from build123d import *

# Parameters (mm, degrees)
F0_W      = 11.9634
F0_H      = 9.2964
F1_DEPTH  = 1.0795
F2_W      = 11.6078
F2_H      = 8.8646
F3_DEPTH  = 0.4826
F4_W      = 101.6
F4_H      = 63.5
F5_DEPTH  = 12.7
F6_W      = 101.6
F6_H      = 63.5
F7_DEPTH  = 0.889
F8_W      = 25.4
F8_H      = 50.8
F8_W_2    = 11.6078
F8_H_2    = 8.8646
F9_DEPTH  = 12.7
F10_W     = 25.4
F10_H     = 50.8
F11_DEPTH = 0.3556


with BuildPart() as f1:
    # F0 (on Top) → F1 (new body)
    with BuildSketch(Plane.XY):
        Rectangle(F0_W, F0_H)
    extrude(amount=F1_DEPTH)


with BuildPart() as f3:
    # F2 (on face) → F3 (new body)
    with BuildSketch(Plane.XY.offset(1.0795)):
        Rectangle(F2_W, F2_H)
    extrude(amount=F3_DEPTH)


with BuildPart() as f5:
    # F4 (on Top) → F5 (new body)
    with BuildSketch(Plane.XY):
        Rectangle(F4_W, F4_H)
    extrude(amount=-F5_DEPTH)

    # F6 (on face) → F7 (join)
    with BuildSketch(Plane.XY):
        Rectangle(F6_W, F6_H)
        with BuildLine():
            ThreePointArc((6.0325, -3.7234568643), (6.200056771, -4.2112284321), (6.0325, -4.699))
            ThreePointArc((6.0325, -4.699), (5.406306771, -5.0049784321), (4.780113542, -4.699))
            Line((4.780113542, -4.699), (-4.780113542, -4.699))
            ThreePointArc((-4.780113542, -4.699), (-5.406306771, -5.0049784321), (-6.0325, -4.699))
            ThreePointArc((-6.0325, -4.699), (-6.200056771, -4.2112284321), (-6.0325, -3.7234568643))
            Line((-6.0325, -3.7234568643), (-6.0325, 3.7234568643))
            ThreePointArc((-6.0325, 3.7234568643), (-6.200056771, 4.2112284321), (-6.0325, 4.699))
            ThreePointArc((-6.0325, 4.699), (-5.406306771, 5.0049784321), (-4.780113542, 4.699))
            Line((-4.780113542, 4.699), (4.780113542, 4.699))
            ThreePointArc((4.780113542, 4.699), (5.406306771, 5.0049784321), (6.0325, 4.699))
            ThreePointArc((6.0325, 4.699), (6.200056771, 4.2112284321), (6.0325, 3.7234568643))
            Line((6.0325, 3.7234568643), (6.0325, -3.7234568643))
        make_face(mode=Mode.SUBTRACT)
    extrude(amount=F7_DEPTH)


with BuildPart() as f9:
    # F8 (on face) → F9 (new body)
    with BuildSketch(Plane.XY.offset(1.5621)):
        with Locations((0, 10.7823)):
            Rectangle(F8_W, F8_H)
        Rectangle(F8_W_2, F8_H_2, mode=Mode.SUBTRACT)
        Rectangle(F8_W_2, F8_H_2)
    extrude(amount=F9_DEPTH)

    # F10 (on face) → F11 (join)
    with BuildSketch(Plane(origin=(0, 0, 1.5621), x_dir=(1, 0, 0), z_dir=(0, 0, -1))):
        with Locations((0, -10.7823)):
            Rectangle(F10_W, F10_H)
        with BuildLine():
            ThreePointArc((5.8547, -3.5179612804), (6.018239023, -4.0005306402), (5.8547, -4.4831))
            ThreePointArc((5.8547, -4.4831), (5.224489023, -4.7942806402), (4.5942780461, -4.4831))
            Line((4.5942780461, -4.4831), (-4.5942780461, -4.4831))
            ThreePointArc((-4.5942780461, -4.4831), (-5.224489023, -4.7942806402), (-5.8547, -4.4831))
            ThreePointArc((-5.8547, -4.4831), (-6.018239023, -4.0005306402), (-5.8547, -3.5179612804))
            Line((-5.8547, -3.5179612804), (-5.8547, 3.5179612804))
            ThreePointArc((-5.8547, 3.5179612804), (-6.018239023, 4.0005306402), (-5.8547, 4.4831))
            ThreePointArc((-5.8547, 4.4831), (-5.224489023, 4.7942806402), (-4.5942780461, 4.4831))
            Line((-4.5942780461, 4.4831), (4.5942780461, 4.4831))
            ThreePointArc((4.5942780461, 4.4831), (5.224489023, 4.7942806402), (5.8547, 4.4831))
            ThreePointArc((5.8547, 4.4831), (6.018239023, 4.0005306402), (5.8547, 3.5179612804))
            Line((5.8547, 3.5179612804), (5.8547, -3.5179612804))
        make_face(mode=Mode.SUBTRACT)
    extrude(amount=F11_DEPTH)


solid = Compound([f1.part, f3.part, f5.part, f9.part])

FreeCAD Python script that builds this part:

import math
import FreeCAD as App
import Part
import Sketcher

V = App.Vector
Q = App.Units.Quantity

doc = App.newDocument("Part")
body = doc.addObject("PartDesign::Body", "Body")

# Sketch on XY plane
sketch1 = body.newObject("Sketcher::SketchObject", "Sketch")
sketch1.AttachmentSupport = (doc.getObject("XY_Plane"), [""])
sketch1.MapMode = "FlatFace"
sketch1.addGeometry(Part.LineSegment(V(-5.9817, 4.6482, 0), V(-5.9817, -4.6482, 0)), False)
sketch1.addGeometry(Part.LineSegment(V(-5.9817, -4.6482, 0), V(5.9817, -4.6482, 0)), False)
sketch1.addGeometry(Part.LineSegment(V(5.9817, -4.6482, 0), V(5.9817, 4.6482, 0)), False)
sketch1.addGeometry(Part.LineSegment(V(5.9817, 4.6482, 0), V(-5.9817, 4.6482, 0)), False)
sketch1.addConstraint(Sketcher.Constraint("Coincident", 0, 2, 1, 1))
sketch1.addConstraint(Sketcher.Constraint("Coincident", 1, 2, 2, 1))
sketch1.addConstraint(Sketcher.Constraint("Coincident", 2, 2, 3, 1))
sketch1.addConstraint(Sketcher.Constraint("Coincident", 3, 2, 0, 1))
sketch1.addConstraint(Sketcher.Constraint("Vertical", 0))
sketch1.addConstraint(Sketcher.Constraint("Horizontal", 1))
sketch1.addConstraint(Sketcher.Constraint("Vertical", 2))
sketch1.addConstraint(Sketcher.Constraint("Horizontal", 3))
sketch1.addConstraint(Sketcher.Constraint("Symmetric", 0, 2, 2, 2, -1, 1))
sketch1.addConstraint(Sketcher.Constraint("DistanceX", 1, 1, 1, 2, Q("0.471 in")))
sketch1.addConstraint(Sketcher.Constraint("DistanceY", 0, 2, 0, 1, Q("0.366 in")))
pad1 = body.newObject("PartDesign::Pad", "Pad")
pad1.Profile = sketch1
pad1.Length = Q("0.0425 in")
body2 = doc.addObject("PartDesign::Body", "Body001")

# Sketch on XY plane
sketch2 = body2.newObject("Sketcher::SketchObject", "Sketch001")
sketch2.AttachmentSupport = (doc.getObject("XY_Plane001"), [""])
sketch2.MapMode = "FlatFace"
sketch2.AttachmentOffset = App.Placement(V(0, 0, 0.0425 * 25.4), App.Rotation())
sketch2.addGeometry(Part.LineSegment(V(-5.8039, 4.4323, 0), V(-5.8039, -4.4323, 0)), False)
sketch2.addGeometry(Part.LineSegment(V(-5.8039, -4.4323, 0), V(5.8039, -4.4323, 0)), False)
sketch2.addGeometry(Part.LineSegment(V(5.8039, -4.4323, 0), V(5.8039, 4.4323, 0)), False)
sketch2.addGeometry(Part.LineSegment(V(5.8039, 4.4323, 0), V(-5.8039, 4.4323, 0)), False)
sketch2.addConstraint(Sketcher.Constraint("Coincident", 0, 2, 1, 1))
sketch2.addConstraint(Sketcher.Constraint("Coincident", 1, 2, 2, 1))
sketch2.addConstraint(Sketcher.Constraint("Coincident", 2, 2, 3, 1))
sketch2.addConstraint(Sketcher.Constraint("Coincident", 3, 2, 0, 1))
sketch2.addConstraint(Sketcher.Constraint("Vertical", 0))
sketch2.addConstraint(Sketcher.Constraint("Horizontal", 1))
sketch2.addConstraint(Sketcher.Constraint("Vertical", 2))
sketch2.addConstraint(Sketcher.Constraint("Horizontal", 3))
sketch2.addConstraint(Sketcher.Constraint("Symmetric", 0, 2, 2, 2, -1, 1))
sketch2.addConstraint(Sketcher.Constraint("DistanceX", 1, 1, 1, 2, Q("0.457 in")))
sketch2.addConstraint(Sketcher.Constraint("DistanceY", 0, 2, 0, 1, Q("0.349 in")))
pad2 = body2.newObject("PartDesign::Pad", "Pad001")
pad2.Profile = sketch2
pad2.Length = Q("0.019 in")
body3 = doc.addObject("PartDesign::Body", "Body002")

# Sketch on XY plane
sketch3 = body3.newObject("Sketcher::SketchObject", "Sketch002")
sketch3.AttachmentSupport = (doc.getObject("XY_Plane002"), [""])
sketch3.MapMode = "FlatFace"
sketch3.addGeometry(Part.LineSegment(V(-50.8, 31.75, 0), V(-50.8, -31.75, 0)), False)
sketch3.addGeometry(Part.LineSegment(V(-50.8, -31.75, 0), V(50.8, -31.75, 0)), False)
sketch3.addGeometry(Part.LineSegment(V(50.8, -31.75, 0), V(50.8, 31.75, 0)), False)
sketch3.addGeometry(Part.LineSegment(V(50.8, 31.75, 0), V(-50.8, 31.75, 0)), False)
sketch3.addConstraint(Sketcher.Constraint("Coincident", 0, 2, 1, 1))
sketch3.addConstraint(Sketcher.Constraint("Coincident", 1, 2, 2, 1))
sketch3.addConstraint(Sketcher.Constraint("Coincident", 2, 2, 3, 1))
sketch3.addConstraint(Sketcher.Constraint("Coincident", 3, 2, 0, 1))
sketch3.addConstraint(Sketcher.Constraint("Vertical", 0))
sketch3.addConstraint(Sketcher.Constraint("Horizontal", 1))
sketch3.addConstraint(Sketcher.Constraint("Vertical", 2))
sketch3.addConstraint(Sketcher.Constraint("Horizontal", 3))
sketch3.addConstraint(Sketcher.Constraint("Symmetric", 0, 2, 2, 2, -1, 1))
sketch3.addConstraint(Sketcher.Constraint("DistanceX", 1, 1, 1, 2, Q("4 in")))
sketch3.addConstraint(Sketcher.Constraint("DistanceY", 0, 2, 0, 1, Q("2.5 in")))
pad3 = body3.newObject("PartDesign::Pad", "Pad002")
pad3.Profile = sketch3
pad3.Length = Q("0.5 in")
pad3.Reversed = True

# Sketch on XY plane
sketch4 = body3.newObject("Sketcher::SketchObject", "Sketch003")
sketch4.AttachmentSupport = (doc.getObject("XY_Plane002"), [""])
sketch4.MapMode = "FlatFace"
sketch4.addGeometry(Part.LineSegment(V(-50.8, 31.75, 0), V(-50.8, -31.75, 0)), False)
sketch4.addGeometry(Part.LineSegment(V(-50.8, -31.75, 0), V(50.8, -31.75, 0)), False)
sketch4.addGeometry(Part.LineSegment(V(50.8, -31.75, 0), V(50.8, 31.75, 0)), False)
sketch4.addGeometry(Part.LineSegment(V(50.8, 31.75, 0), V(-50.8, 31.75, 0)), False)
sketch4.addGeometry(Part.LineSegment(V(6.0325, 3.723457, 0), V(6.0325, -3.723457, 0)), False)
sketch4.addGeometry(Part.ArcOfCircle(Part.Circle(V(5.406307, -4.211228, 0), V(0, 0, 1), 0.79375), math.radians(-37.916714), math.radians(37.916714)), False)
sketch4.addGeometry(Part.ArcOfCircle(Part.Circle(V(5.406307, -4.211228, 0), V(0, 0, 1), 0.79375), math.radians(-142.083286), math.radians(-37.916714)), False)
sketch4.addGeometry(Part.LineSegment(V(4.780114, -4.699, 0), V(-4.780114, -4.699, 0)), False)
sketch4.addGeometry(Part.ArcOfCircle(Part.Circle(V(-5.406307, -4.211228, 0), V(0, 0, 1), 0.79375), math.radians(-142.083286), math.radians(-37.916714)), False)
sketch4.addGeometry(Part.ArcOfCircle(Part.Circle(V(-5.406307, -4.211228, 0), V(0, 0, 1), 0.79375), math.radians(142.083286), math.radians(217.916714)), False)
sketch4.addGeometry(Part.LineSegment(V(-6.0325, -3.723457, 0), V(-6.0325, 3.723457, 0)), False)
sketch4.addGeometry(Part.ArcOfCircle(Part.Circle(V(-5.406307, 4.211228, 0), V(0, 0, 1), 0.79375), math.radians(142.083286), math.radians(217.916714)), False)
sketch4.addGeometry(Part.ArcOfCircle(Part.Circle(V(-5.406307, 4.211228, 0), V(0, 0, 1), 0.79375), math.radians(37.916714), math.radians(142.083286)), False)
sketch4.addGeometry(Part.LineSegment(V(-4.780114, 4.699, 0), V(4.780114, 4.699, 0)), False)
sketch4.addGeometry(Part.ArcOfCircle(Part.Circle(V(5.406307, 4.211228, 0), V(0, 0, 1), 0.79375), math.radians(37.916714), math.radians(142.083286)), False)
sketch4.addGeometry(Part.ArcOfCircle(Part.Circle(V(5.406307, 4.211228, 0), V(0, 0, 1), 0.79375), math.radians(-37.916714), math.radians(37.916714)), False)
sketch4.addConstraint(Sketcher.Constraint("Coincident", 0, 2, 1, 1))
sketch4.addConstraint(Sketcher.Constraint("Coincident", 1, 2, 2, 1))
sketch4.addConstraint(Sketcher.Constraint("Coincident", 2, 2, 3, 1))
sketch4.addConstraint(Sketcher.Constraint("Coincident", 3, 2, 0, 1))
sketch4.addConstraint(Sketcher.Constraint("Coincident", 4, 2, 5, 2))
sketch4.addConstraint(Sketcher.Constraint("Tangent", 5, 1, 6, 2))
sketch4.addConstraint(Sketcher.Constraint("Coincident", 6, 1, 7, 1))
sketch4.addConstraint(Sketcher.Constraint("Coincident", 7, 2, 8, 2))
sketch4.addConstraint(Sketcher.Constraint("Tangent", 8, 1, 9, 2))
sketch4.addConstraint(Sketcher.Constraint("Coincident", 9, 1, 10, 1))
sketch4.addConstraint(Sketcher.Constraint("Coincident", 10, 2, 11, 2))
sketch4.addConstraint(Sketcher.Constraint("Tangent", 11, 1, 12, 2))
sketch4.addConstraint(Sketcher.Constraint("Coincident", 12, 1, 13, 1))
sketch4.addConstraint(Sketcher.Constraint("Coincident", 13, 2, 14, 2))
sketch4.addConstraint(Sketcher.Constraint("Tangent", 14, 1, 15, 2))
sketch4.addConstraint(Sketcher.Constraint("Coincident", 15, 1, 4, 1))
sketch4.addConstraint(Sketcher.Constraint("Vertical", 0))
sketch4.addConstraint(Sketcher.Constraint("Horizontal", 1))
sketch4.addConstraint(Sketcher.Constraint("Vertical", 2))
sketch4.addConstraint(Sketcher.Constraint("Horizontal", 3))
sketch4.addConstraint(Sketcher.Constraint("Vertical", 4))
sketch4.addConstraint(Sketcher.Constraint("Horizontal", 7))
sketch4.addConstraint(Sketcher.Constraint("Vertical", 10))
sketch4.addConstraint(Sketcher.Constraint("Horizontal", 13))
sketch4.addConstraint(Sketcher.Constraint("Equal", 5, 6))
sketch4.addConstraint(Sketcher.Constraint("Equal", 6, 8))
sketch4.addConstraint(Sketcher.Constraint("Equal", 8, 9))
sketch4.addConstraint(Sketcher.Constraint("Equal", 9, 11))
sketch4.addConstraint(Sketcher.Constraint("Equal", 11, 12))
sketch4.addConstraint(Sketcher.Constraint("Equal", 12, 14))
sketch4.addConstraint(Sketcher.Constraint("Equal", 14, 15))
sketch4.addConstraint(Sketcher.Constraint("Symmetric", 5, 3, 11, 3, -1, 1))
sketch4.addConstraint(Sketcher.Constraint("Symmetric", 8, 3, 14, 3, -1, 1))
sketch4.addConstraint(Sketcher.Constraint("Symmetric", 0, 2, 2, 2, -1, 1))
sketch4.addConstraint(Sketcher.Constraint("Symmetric", 5, 3, 8, 3, -2))
sketch4.addConstraint(Sketcher.Constraint("Horizontal", 5, 1, 6, 1))
sketch4.addConstraint(Sketcher.Constraint("Horizontal", 7, 2, 8, 1))
sketch4.addConstraint(Sketcher.Constraint("Horizontal", 4, 2, 9, 1))
sketch4.addConstraint(Sketcher.Constraint("Horizontal", 11, 1, 12, 1))
sketch4.addConstraint(Sketcher.Constraint("Horizontal", 13, 2, 14, 1))
sketch4.addConstraint(Sketcher.Constraint("Vertical", 4, 2, 5, 1))
sketch4.addConstraint(Sketcher.Constraint("Vertical", 10, 2, 11, 1))
sketch4.addConstraint(Sketcher.Constraint("DistanceX", 1, 1, 1, 2, Q("4 in")))
sketch4.addConstraint(Sketcher.Constraint("DistanceY", 0, 2, 0, 1, Q("2.5 in")))
sketch4.addConstraint(Sketcher.Constraint("Radius", 5, Q("0.03125 in")))
sketch4.addConstraint(Sketcher.Constraint("DistanceY", 5, 1, -1, 1, Q("0.185 in")))
sketch4.addConstraint(Sketcher.Constraint("DistanceX", -1, 1, 4, 2, Q("0.2375 in")))
sketch4.addConstraint(Sketcher.Constraint("DistanceX", 7, 2, 7, 1, 9.560227))
pad4 = body3.newObject("PartDesign::Pad", "Pad003")
pad4.Profile = sketch4
pad4.Length = Q("0.035 in")
body4 = doc.addObject("PartDesign::Body", "Body003")

# Sketch on XY plane
sketch5 = body4.newObject("Sketcher::SketchObject", "Sketch004")
sketch5.AttachmentSupport = (doc.getObject("XY_Plane003"), [""])
sketch5.MapMode = "FlatFace"
sketch5.AttachmentOffset = App.Placement(V(0, 0, 0.0615 * 25.4), App.Rotation())
sketch5.addGeometry(Part.LineSegment(V(-12.7, 36.1823, 0), V(-12.7, -14.6177, 0)), False)
sketch5.addGeometry(Part.LineSegment(V(-12.7, -14.6177, 0), V(12.7, -14.6177, 0)), False)
sketch5.addGeometry(Part.LineSegment(V(12.7, -14.6177, 0), V(12.7, 36.1823, 0)), False)
sketch5.addGeometry(Part.LineSegment(V(12.7, 36.1823, 0), V(-12.7, 36.1823, 0)), False)
sketch5.addConstraint(Sketcher.Constraint("Coincident", 0, 2, 1, 1))
sketch5.addConstraint(Sketcher.Constraint("Coincident", 1, 2, 2, 1))
sketch5.addConstraint(Sketcher.Constraint("Coincident", 2, 2, 3, 1))
sketch5.addConstraint(Sketcher.Constraint("Coincident", 3, 2, 0, 1))
sketch5.addConstraint(Sketcher.Constraint("Vertical", 0))
sketch5.addConstraint(Sketcher.Constraint("Horizontal", 1))
sketch5.addConstraint(Sketcher.Constraint("Vertical", 2))
sketch5.addConstraint(Sketcher.Constraint("Horizontal", 3))
sketch5.addConstraint(Sketcher.Constraint("DistanceX", 1, 1, 1, 2, Q("1 in")))
sketch5.addConstraint(Sketcher.Constraint("DistanceY", 0, 2, 0, 1, Q("2 in")))
sketch5.addConstraint(Sketcher.Constraint("DistanceX", 0, 2, -1, 1, Q("0.5 in")))
sketch5.addConstraint(Sketcher.Constraint("DistanceY", 0, 2, -1, 1, Q("0.5755 in")))
pad5 = body4.newObject("PartDesign::Pad", "Pad004")
pad5.Profile = sketch5
pad5.Length = Q("0.5 in")

# Sketch on XY plane
sketch6 = body4.newObject("Sketcher::SketchObject", "Sketch005")
sketch6.AttachmentSupport = (doc.getObject("XY_Plane003"), [""])
sketch6.MapMode = "FlatFace"
sketch6.AttachmentOffset = App.Placement(V(0, 0, 0.0615 * 25.4), App.Rotation())
sketch6.addGeometry(Part.LineSegment(V(-12.7, -14.6177, 0), V(-12.7, 36.1823, 0)), False)
sketch6.addGeometry(Part.LineSegment(V(-12.7, 36.1823, 0), V(12.7, 36.1823, 0)), False)
sketch6.addGeometry(Part.LineSegment(V(12.7, 36.1823, 0), V(12.7, -14.6177, 0)), False)
sketch6.addGeometry(Part.LineSegment(V(12.7, -14.6177, 0), V(-12.7, -14.6177, 0)), False)
sketch6.addGeometry(Part.LineSegment(V(5.8547, -3.517961, 0), V(5.8547, 3.517961, 0)), False)
sketch6.addGeometry(Part.ArcOfCircle(Part.Circle(V(5.224489, 4.000531, 0), V(0, 0, 1), 0.79375), math.radians(-37.442244), math.radians(37.442244)), False)
sketch6.addGeometry(Part.ArcOfCircle(Part.Circle(V(5.224489, 4.000531, 0), V(0, 0, 1), 0.79375), math.radians(37.442244), math.radians(142.557756)), False)
sketch6.addGeometry(Part.LineSegment(V(4.594278, 4.4831, 0), V(-4.594278, 4.4831, 0)), False)
sketch6.addGeometry(Part.ArcOfCircle(Part.Circle(V(-5.224489, 4.000531, 0), V(0, 0, 1), 0.79375), math.radians(37.442244), math.radians(142.557756)), False)
sketch6.addGeometry(Part.ArcOfCircle(Part.Circle(V(-5.224489, 4.000531, 0), V(0, 0, 1), 0.79375), math.radians(142.557756), math.radians(217.442244)), False)
sketch6.addGeometry(Part.LineSegment(V(-5.8547, 3.517961, 0), V(-5.8547, -3.517961, 0)), False)
sketch6.addGeometry(Part.ArcOfCircle(Part.Circle(V(-5.224489, -4.000531, 0), V(0, 0, 1), 0.79375), math.radians(142.557756), math.radians(217.442244)), False)
sketch6.addGeometry(Part.ArcOfCircle(Part.Circle(V(-5.224489, -4.000531, 0), V(0, 0, 1), 0.79375), math.radians(-142.557756), math.radians(-37.442244)), False)
sketch6.addGeometry(Part.LineSegment(V(-4.594278, -4.4831, 0), V(4.594278, -4.4831, 0)), False)
sketch6.addGeometry(Part.ArcOfCircle(Part.Circle(V(5.224489, -4.000531, 0), V(0, 0, 1), 0.79375), math.radians(-142.557756), math.radians(-37.442244)), False)
sketch6.addGeometry(Part.ArcOfCircle(Part.Circle(V(5.224489, -4.000531, 0), V(0, 0, 1), 0.79375), math.radians(-37.442244), math.radians(37.442244)), False)
sketch6.addConstraint(Sketcher.Constraint("Coincident", 0, 2, 1, 1))
sketch6.addConstraint(Sketcher.Constraint("Coincident", 1, 2, 2, 1))
sketch6.addConstraint(Sketcher.Constraint("Coincident", 2, 2, 3, 1))
sketch6.addConstraint(Sketcher.Constraint("Coincident", 3, 2, 0, 1))
sketch6.addConstraint(Sketcher.Constraint("Coincident", 4, 2, 5, 1))
sketch6.addConstraint(Sketcher.Constraint("Tangent", 5, 2, 6, 1))
sketch6.addConstraint(Sketcher.Constraint("Coincident", 6, 2, 7, 1))
sketch6.addConstraint(Sketcher.Constraint("Coincident", 7, 2, 8, 1))
sketch6.addConstraint(Sketcher.Constraint("Tangent", 8, 2, 9, 1))
sketch6.addConstraint(Sketcher.Constraint("Coincident", 9, 2, 10, 1))
sketch6.addConstraint(Sketcher.Constraint("Coincident", 10, 2, 11, 1))
sketch6.addConstraint(Sketcher.Constraint("Tangent", 11, 2, 12, 1))
sketch6.addConstraint(Sketcher.Constraint("Coincident", 12, 2, 13, 1))
sketch6.addConstraint(Sketcher.Constraint("Coincident", 13, 2, 14, 1))
sketch6.addConstraint(Sketcher.Constraint("Tangent", 14, 2, 15, 1))
sketch6.addConstraint(Sketcher.Constraint("Coincident", 15, 2, 4, 1))
sketch6.addConstraint(Sketcher.Constraint("Vertical", 0))
sketch6.addConstraint(Sketcher.Constraint("Horizontal", 1))
sketch6.addConstraint(Sketcher.Constraint("Vertical", 2))
sketch6.addConstraint(Sketcher.Constraint("Horizontal", 3))
sketch6.addConstraint(Sketcher.Constraint("Vertical", 4))
sketch6.addConstraint(Sketcher.Constraint("Horizontal", 7))
sketch6.addConstraint(Sketcher.Constraint("Vertical", 10))
sketch6.addConstraint(Sketcher.Constraint("Horizontal", 13))
sketch6.addConstraint(Sketcher.Constraint("Equal", 5, 6))
sketch6.addConstraint(Sketcher.Constraint("Equal", 6, 8))
sketch6.addConstraint(Sketcher.Constraint("Equal", 8, 9))
sketch6.addConstraint(Sketcher.Constraint("Equal", 9, 11))
sketch6.addConstraint(Sketcher.Constraint("Equal", 11, 12))
sketch6.addConstraint(Sketcher.Constraint("Equal", 12, 14))
sketch6.addConstraint(Sketcher.Constraint("Equal", 14, 15))
sketch6.addConstraint(Sketcher.Constraint("Symmetric", 5, 3, 11, 3, -1, 1))
sketch6.addConstraint(Sketcher.Constraint("Symmetric", 8, 3, 14, 3, -1, 1))
sketch6.addConstraint(Sketcher.Constraint("Symmetric", 5, 3, 8, 3, -2))
sketch6.addConstraint(Sketcher.Constraint("Horizontal", 5, 2, 6, 2))
sketch6.addConstraint(Sketcher.Constraint("Horizontal", 7, 2, 8, 2))
sketch6.addConstraint(Sketcher.Constraint("Horizontal", 4, 2, 9, 2))
sketch6.addConstraint(Sketcher.Constraint("Horizontal", 11, 2, 12, 2))
sketch6.addConstraint(Sketcher.Constraint("Horizontal", 13, 2, 14, 2))
sketch6.addConstraint(Sketcher.Constraint("Vertical", 4, 2, 5, 2))
sketch6.addConstraint(Sketcher.Constraint("Vertical", 10, 2, 11, 2))
sketch6.addConstraint(Sketcher.Constraint("DistanceX", 1, 1, 1, 2, Q("1 in")))
sketch6.addConstraint(Sketcher.Constraint("DistanceY", 0, 1, 0, 2, Q("2 in")))
sketch6.addConstraint(Sketcher.Constraint("Radius", 5, Q("0.03125 in")))
sketch6.addConstraint(Sketcher.Constraint("DistanceX", 0, 2, -1, 1, Q("0.5 in")))
sketch6.addConstraint(Sketcher.Constraint("DistanceY", -1, 1, 0, 2, Q("1.4245 in")))
sketch6.addConstraint(Sketcher.Constraint("DistanceX", -1, 1, 4, 2, Q("0.2305 in")))
sketch6.addConstraint(Sketcher.Constraint("DistanceY", -1, 1, 5, 2, Q("0.1765 in")))
sketch6.addConstraint(Sketcher.Constraint("DistanceX", 7, 2, 7, 1, 9.188556))
pad6 = body4.newObject("PartDesign::Pad", "Pad005")
pad6.Profile = sketch6
pad6.Length = Q("0.014 in")
pad6.Reversed = True

doc.recompute()
